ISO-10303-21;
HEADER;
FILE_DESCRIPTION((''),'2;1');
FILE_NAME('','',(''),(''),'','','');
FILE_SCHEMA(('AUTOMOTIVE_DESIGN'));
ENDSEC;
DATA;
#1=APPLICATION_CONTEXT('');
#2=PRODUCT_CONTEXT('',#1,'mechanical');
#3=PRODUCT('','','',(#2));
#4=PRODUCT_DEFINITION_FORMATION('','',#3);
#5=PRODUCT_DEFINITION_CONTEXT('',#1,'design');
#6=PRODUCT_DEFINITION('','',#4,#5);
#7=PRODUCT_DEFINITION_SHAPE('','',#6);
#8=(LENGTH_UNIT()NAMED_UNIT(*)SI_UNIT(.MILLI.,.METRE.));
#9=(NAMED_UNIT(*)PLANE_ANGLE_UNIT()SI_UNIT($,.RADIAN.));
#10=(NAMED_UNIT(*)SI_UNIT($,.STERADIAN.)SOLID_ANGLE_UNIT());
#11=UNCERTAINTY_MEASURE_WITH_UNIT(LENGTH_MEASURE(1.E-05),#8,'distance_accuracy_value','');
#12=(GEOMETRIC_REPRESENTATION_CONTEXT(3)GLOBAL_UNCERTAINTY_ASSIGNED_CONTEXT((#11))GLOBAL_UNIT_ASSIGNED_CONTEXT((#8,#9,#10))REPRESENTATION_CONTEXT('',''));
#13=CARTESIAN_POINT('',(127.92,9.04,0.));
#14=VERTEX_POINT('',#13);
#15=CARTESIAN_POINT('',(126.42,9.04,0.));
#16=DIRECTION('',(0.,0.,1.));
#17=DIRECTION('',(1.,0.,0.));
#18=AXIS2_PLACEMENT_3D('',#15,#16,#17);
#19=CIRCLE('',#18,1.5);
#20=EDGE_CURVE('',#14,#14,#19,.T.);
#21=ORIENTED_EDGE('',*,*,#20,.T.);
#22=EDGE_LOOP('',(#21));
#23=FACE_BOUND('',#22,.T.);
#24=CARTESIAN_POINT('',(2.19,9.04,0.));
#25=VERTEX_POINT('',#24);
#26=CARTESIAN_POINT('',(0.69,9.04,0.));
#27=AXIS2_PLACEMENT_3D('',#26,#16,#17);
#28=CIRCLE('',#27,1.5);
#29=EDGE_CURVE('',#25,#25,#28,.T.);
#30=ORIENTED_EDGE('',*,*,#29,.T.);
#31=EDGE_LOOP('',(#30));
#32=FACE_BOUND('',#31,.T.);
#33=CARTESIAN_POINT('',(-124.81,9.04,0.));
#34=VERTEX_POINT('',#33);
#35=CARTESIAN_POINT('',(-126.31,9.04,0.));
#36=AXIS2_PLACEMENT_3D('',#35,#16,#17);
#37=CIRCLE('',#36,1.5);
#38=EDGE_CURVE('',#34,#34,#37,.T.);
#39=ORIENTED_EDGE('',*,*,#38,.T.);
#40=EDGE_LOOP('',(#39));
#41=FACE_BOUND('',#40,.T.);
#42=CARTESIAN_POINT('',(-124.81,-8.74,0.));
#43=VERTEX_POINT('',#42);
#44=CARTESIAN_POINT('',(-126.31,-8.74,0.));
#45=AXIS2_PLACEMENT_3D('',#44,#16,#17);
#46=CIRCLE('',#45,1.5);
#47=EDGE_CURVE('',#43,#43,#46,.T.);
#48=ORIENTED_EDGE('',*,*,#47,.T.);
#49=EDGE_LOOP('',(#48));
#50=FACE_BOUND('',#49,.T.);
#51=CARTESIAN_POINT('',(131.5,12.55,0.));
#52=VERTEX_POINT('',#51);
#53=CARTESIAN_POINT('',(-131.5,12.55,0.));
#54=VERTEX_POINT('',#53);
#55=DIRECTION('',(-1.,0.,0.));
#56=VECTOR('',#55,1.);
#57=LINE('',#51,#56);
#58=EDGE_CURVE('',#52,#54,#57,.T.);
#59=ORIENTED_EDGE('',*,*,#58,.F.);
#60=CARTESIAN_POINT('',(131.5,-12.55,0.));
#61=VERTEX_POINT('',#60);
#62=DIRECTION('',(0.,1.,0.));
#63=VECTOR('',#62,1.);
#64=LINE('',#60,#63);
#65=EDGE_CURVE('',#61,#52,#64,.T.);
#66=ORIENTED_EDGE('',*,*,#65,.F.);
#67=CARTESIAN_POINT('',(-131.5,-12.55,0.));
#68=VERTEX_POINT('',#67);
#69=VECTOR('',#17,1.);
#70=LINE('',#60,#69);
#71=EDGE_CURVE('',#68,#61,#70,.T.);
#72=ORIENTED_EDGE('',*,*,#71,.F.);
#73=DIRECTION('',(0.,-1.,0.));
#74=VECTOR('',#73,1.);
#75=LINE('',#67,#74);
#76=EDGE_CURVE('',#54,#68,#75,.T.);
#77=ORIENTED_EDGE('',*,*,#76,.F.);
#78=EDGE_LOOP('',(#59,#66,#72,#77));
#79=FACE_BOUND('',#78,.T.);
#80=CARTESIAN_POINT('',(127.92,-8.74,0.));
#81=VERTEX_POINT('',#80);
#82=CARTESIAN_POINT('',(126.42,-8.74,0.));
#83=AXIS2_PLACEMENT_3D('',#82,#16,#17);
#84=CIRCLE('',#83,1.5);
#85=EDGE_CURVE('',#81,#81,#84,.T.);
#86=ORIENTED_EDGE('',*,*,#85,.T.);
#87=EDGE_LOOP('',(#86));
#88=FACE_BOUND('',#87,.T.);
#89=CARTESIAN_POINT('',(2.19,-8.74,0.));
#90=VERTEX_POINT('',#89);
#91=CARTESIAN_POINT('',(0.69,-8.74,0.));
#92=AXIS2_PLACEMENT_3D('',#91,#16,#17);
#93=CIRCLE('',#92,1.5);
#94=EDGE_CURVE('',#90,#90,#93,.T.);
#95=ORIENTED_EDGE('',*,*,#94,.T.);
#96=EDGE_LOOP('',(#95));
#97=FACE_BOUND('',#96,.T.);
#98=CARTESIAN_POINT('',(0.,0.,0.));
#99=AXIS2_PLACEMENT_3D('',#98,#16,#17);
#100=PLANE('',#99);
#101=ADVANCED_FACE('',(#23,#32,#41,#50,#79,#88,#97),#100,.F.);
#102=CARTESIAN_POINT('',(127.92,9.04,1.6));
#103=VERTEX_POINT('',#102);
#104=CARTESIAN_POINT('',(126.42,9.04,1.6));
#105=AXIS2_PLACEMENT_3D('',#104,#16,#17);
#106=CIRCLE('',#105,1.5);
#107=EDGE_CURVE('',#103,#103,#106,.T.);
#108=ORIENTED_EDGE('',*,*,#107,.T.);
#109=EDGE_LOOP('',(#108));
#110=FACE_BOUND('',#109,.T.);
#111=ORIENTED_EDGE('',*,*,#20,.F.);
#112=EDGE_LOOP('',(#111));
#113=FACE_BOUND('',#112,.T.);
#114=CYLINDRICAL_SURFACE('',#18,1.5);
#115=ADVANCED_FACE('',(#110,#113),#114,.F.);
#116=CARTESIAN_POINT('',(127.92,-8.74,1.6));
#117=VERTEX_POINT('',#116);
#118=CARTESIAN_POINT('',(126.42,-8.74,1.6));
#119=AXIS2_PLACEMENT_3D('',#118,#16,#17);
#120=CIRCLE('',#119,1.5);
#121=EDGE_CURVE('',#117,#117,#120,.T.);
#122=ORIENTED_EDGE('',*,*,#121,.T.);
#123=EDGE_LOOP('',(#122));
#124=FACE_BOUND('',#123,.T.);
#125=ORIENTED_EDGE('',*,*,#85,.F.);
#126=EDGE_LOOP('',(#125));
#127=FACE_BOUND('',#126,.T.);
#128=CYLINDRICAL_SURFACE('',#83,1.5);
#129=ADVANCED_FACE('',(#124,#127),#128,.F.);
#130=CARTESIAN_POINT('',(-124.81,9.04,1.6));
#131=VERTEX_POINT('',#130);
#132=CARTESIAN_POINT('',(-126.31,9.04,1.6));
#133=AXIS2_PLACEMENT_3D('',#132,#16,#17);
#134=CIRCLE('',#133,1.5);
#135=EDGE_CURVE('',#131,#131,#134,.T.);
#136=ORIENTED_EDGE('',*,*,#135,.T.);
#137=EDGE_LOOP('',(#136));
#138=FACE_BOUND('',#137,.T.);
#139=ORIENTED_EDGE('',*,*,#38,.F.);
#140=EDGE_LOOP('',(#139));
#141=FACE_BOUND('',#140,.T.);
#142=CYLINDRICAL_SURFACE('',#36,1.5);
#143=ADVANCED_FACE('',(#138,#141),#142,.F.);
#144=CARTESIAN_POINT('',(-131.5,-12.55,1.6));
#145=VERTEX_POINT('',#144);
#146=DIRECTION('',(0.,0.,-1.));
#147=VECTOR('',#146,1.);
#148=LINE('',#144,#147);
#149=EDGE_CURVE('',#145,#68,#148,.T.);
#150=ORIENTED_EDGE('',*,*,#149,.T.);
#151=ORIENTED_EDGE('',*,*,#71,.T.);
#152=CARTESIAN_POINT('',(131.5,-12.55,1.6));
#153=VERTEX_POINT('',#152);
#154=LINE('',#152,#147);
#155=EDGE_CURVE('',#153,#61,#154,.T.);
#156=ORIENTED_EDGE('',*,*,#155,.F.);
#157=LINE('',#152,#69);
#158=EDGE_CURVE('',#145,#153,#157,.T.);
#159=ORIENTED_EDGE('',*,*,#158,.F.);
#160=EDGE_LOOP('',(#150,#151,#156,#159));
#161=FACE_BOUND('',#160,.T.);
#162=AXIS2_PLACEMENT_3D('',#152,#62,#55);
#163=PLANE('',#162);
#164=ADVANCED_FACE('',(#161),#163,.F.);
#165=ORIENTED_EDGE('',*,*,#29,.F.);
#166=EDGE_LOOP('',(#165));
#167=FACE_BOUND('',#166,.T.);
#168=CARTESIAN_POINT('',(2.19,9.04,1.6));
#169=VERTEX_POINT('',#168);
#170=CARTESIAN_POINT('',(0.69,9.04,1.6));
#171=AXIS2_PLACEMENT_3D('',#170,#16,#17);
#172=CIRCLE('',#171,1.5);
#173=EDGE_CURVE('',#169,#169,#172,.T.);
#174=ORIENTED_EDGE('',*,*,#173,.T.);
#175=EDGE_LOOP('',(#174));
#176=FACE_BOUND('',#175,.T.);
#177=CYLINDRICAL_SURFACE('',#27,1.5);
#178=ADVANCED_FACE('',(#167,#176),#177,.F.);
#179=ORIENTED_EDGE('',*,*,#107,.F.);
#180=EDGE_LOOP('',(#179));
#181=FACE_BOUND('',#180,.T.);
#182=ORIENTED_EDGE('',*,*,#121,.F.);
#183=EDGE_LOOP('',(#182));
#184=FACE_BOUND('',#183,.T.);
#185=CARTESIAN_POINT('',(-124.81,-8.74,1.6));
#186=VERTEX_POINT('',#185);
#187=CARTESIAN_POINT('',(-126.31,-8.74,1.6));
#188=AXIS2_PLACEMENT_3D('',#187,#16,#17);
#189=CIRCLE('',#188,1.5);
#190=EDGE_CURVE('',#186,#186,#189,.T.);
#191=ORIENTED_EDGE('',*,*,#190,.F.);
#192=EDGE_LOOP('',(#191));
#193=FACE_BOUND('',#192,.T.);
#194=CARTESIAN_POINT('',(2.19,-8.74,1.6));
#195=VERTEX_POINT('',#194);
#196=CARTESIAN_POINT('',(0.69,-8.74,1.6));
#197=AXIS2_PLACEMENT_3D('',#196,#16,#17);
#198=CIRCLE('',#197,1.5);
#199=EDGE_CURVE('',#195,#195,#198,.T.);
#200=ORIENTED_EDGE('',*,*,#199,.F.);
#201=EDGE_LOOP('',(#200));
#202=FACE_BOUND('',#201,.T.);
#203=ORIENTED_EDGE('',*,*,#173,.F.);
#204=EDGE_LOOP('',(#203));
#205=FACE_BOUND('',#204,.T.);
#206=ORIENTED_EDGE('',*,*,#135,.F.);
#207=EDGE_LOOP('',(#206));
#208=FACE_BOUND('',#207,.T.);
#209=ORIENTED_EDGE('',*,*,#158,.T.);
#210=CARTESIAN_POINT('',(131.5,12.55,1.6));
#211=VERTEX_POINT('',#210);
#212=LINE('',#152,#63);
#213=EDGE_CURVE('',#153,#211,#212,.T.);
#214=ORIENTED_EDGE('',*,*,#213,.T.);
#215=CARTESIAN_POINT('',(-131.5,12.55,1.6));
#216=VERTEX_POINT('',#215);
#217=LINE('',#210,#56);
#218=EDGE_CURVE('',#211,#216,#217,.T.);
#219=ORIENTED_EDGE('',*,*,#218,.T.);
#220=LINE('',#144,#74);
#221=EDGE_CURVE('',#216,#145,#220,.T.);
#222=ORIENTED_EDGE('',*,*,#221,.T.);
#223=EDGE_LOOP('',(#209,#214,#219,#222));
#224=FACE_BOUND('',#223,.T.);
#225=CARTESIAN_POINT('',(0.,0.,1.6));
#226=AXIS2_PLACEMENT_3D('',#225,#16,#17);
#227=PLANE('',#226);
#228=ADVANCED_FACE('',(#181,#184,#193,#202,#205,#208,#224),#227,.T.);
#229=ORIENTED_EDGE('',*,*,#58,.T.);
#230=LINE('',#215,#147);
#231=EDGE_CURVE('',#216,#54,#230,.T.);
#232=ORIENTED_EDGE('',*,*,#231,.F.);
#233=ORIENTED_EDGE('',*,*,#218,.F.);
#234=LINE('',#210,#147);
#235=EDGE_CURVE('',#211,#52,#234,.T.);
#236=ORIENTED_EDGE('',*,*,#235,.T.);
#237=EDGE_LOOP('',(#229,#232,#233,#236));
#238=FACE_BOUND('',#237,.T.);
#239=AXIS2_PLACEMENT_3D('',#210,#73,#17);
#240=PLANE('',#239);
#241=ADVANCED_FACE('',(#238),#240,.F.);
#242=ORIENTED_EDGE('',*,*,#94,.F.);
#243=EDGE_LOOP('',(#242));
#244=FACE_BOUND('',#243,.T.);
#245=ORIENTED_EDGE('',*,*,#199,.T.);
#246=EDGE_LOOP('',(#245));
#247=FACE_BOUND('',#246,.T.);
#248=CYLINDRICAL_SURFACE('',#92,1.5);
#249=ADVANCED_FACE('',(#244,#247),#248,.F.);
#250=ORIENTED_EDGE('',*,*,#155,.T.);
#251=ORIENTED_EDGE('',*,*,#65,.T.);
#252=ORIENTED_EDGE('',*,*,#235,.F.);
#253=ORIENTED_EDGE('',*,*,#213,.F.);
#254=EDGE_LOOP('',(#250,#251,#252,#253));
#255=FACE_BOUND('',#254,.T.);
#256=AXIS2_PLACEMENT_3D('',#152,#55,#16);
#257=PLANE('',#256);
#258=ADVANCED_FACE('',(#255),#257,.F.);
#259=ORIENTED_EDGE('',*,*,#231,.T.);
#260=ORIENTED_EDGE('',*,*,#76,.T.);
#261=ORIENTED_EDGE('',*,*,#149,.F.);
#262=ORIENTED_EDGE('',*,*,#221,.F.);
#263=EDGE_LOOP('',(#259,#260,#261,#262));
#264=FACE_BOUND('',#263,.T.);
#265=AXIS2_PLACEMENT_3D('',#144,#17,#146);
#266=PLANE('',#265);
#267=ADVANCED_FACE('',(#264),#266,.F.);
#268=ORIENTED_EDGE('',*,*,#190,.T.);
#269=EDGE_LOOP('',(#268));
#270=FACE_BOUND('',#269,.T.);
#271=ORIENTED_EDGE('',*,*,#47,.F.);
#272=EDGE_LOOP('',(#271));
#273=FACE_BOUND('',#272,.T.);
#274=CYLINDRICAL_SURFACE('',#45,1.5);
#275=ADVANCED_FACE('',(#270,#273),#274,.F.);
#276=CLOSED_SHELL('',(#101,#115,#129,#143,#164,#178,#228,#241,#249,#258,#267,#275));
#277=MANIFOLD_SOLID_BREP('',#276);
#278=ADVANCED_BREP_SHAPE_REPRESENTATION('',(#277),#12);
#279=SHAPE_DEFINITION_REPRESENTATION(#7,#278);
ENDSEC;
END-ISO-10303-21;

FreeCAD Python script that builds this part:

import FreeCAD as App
import Part
import Sketcher

V = App.Vector
Q = App.Units.Quantity

doc = App.newDocument("Part")
body = doc.addObject("PartDesign::Body", "Body")

# Sketch on XY plane
sketch1 = body.newObject("Sketcher::SketchObject", "Sketch")
sketch1.AttachmentSupport = (doc.getObject("XY_Plane"), [""])
sketch1.MapMode = "FlatFace"
sketch1.addGeometry(Part.LineSegment(V(-132, 13, 0), V(-132, -13, 0)), False)
sketch1.addGeometry(Part.LineSegment(V(-132, -13, 0), V(132, -13, 0)), False)
sketch1.addGeometry(Part.LineSegment(V(132, -13, 0), V(132, 13, 0)), False)
sketch1.addGeometry(Part.LineSegment(V(132, 13, 0), V(-132, 13, 0)), False)
sketch1.addConstraint(Sketcher.Constraint("Coincident", 0, 2, 1, 1))
sketch1.addConstraint(Sketcher.Constraint("Coincident", 1, 2, 2, 1))
sketch1.addConstraint(Sketcher.Constraint("Coincident", 2, 2, 3, 1))
sketch1.addConstraint(Sketcher.Constraint("Coincident", 3, 2, 0, 1))
sketch1.addConstraint(Sketcher.Constraint("Vertical", 0))
sketch1.addConstraint(Sketcher.Constraint("Horizontal", 1))
sketch1.addConstraint(Sketcher.Constraint("Vertical", 2))
sketch1.addConstraint(Sketcher.Constraint("Horizontal", 3))
sketch1.addConstraint(Sketcher.Constraint("Symmetric", 0, 2, 2, 2, -1, 1))
sketch1.addConstraint(Sketcher.Constraint("DistanceX", 1, 1, 1, 2, Q("263 mm")))
sketch1.addConstraint(Sketcher.Constraint("DistanceY", 0, 2, 0, 1, Q("25.1 mm")))
pad1 = body.newObject("PartDesign::Pad", "Pad")
pad1.Profile = sketch1
pad1.Length = 1.6

# Sketch on XY plane
sketch2 = body.newObject("Sketcher::SketchObject", "Sketch001")
sketch2.AttachmentSupport = (doc.getObject("XY_Plane"), [""])
sketch2.MapMode = "FlatFace"
sketch2.AttachmentOffset = App.Placement(V(0, 0, 1.6), App.Rotation())
sketch2.addGeometry(Part.Circle(V(126.4, -8.7, 0), V(0, 0, 1), 1.5), False)
sketch2.addGeometry(Part.Circle(V(126.4, 9, 0), V(0, 0, 1), 1.5), False)
sketch2.addGeometry(Part.Circle(V(0.7, -8.7, 0), V(0, 0, 1), 1.5), False)
sketch2.addGeometry(Part.Circle(V(-126.3, -8.7, 0), V(0, 0, 1), 1.5), False)
sketch2.addGeometry(Part.Circle(V(0.7, 9, 0), V(0, 0, 1), 1.5), False)
sketch2.addGeometry(Part.Circle(V(-126.3, 9, 0), V(0, 0, 1), 1.5), False)
sketch2.addConstraint(Sketcher.Constraint("Equal", 0, 1))
sketch2.addConstraint(Sketcher.Constraint("Equal", 1, 2))
sketch2.addConstraint(Sketcher.Constraint("Equal", 2, 3))
sketch2.addConstraint(Sketcher.Constraint("Equal", 3, 4))
sketch2.addConstraint(Sketcher.Constraint("Equal", 4, 5))
sketch2.addConstraint(Sketcher.Constraint("Horizontal", 0, 3, 2, 3))
sketch2.addConstraint(Sketcher.Constraint("Horizontal", 2, 3, 3, 3))
sketch2.addConstraint(Sketcher.Constraint("Horizontal", 1, 3, 4, 3))
sketch2.addConstraint(Sketcher.Constraint("Horizontal", 4, 3, 5, 3))
sketch2.addConstraint(Sketcher.Constraint("Vertical", 0, 3, 1, 3))
sketch2.addConstraint(Sketcher.Constraint("Vertical", 2, 3, 4, 3))
sketch2.addConstraint(Sketcher.Constraint("Vertical", 3, 3, 5, 3))
sketch2.addConstraint(Sketcher.Constraint("Diameter", 0, Q("3 mm")))
sketch2.addConstraint(Sketcher.Constraint("DistanceX", 3, 3, 2, 3, Q("127 mm")))
sketch2.addConstraint(Sketcher.Constraint("DistanceX", -1, 1, 0, 3, Q("126.42 mm")))
sketch2.addConstraint(Sketcher.Constraint("DistanceY", 0, 3, -1, 1, Q("8.74 mm")))
sketch2.addConstraint(Sketcher.Constraint("DistanceY", -1, 1, 1, 3, Q("9.04 mm")))
sketch2.addConstraint(Sketcher.Constraint("DistanceX", -1, 1, 2, 3, Q("0.69 mm")))
pocket1 = body.newObject("PartDesign::Pocket", "Pocket")
pocket1.Profile = sketch2
pocket1.Type = "ThroughAll"

doc.recompute()
